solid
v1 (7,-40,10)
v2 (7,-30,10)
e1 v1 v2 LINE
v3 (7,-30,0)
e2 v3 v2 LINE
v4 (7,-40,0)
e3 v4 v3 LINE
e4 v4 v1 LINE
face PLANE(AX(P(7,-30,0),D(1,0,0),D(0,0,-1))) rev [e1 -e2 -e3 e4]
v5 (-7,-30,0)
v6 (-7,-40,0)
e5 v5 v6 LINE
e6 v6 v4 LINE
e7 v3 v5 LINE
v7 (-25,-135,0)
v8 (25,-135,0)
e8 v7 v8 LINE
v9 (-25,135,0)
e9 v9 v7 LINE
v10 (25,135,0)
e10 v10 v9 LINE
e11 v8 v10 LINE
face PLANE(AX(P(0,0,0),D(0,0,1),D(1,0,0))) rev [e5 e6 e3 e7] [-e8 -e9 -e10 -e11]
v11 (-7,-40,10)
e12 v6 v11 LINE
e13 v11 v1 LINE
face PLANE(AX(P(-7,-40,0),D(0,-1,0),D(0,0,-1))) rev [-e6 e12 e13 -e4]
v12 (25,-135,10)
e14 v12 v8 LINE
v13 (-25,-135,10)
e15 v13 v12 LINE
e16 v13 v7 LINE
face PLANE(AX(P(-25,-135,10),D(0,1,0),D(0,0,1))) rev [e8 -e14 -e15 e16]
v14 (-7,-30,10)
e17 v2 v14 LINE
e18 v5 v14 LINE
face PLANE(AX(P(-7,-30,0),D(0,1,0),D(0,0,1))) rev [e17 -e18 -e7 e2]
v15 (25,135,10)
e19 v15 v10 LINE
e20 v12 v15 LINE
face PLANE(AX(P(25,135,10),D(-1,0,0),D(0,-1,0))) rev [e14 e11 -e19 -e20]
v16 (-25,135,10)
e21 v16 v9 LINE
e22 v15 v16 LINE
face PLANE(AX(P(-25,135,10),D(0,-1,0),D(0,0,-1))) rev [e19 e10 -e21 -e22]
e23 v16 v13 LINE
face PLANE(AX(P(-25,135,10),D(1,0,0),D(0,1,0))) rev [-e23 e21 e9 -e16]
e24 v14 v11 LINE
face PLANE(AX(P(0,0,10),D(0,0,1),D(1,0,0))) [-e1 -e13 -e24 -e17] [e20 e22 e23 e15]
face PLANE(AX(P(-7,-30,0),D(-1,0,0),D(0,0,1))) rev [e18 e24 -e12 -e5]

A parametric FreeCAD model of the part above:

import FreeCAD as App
import Part
import Sketcher
from FreeCAD import Vector


def add_polygon(sketch, points):
    """Adds a closed chain of lines whose ends are joined by coincident constraints."""
    first, n = sketch.GeometryCount, len(points)
    for a, b in zip(points, points[1:] + points[:1]):
        sketch.addGeometry(Part.LineSegment(App.Vector(*a, 0), App.Vector(*b, 0)), False)
    for i in range(n):
        sketch.addConstraint(Sketcher.Constraint("Coincident", first + i, 2, first + (i + 1) % n, 1))

doc = App.newDocument("Part")
body = doc.addObject("PartDesign::Body", "Body")

sketch1 = doc.addObject("Sketcher::SketchObject", "Sketch")
body.addObject(sketch1)
sketch1.AttachmentSupport = (doc.XY_Plane, [""])
sketch1.MapMode = "FlatFace"
add_polygon(sketch1, [(-25, 135), (-25, -135), (25, -135), (25, 135)])
sketch1.addConstraint(Sketcher.Constraint("Vertical", 0))
sketch1.addConstraint(Sketcher.Constraint("Horizontal", 1))
sketch1.addConstraint(Sketcher.Constraint("Vertical", 2))
sketch1.addConstraint(Sketcher.Constraint("Horizontal", 3))
sketch1.addConstraint(Sketcher.Constraint("Symmetric", 0, 2, 2, 2, -1, 1))
sketch1.addConstraint(Sketcher.Constraint("DistanceX", 1, 1, 1, 2, 50.0))
sketch1.addConstraint(Sketcher.Constraint("DistanceY", 0, 2, 0, 1, 270.0))
pad1 = doc.addObject("PartDesign::Pad", "Pad")
body.addObject(pad1)
pad1.Profile = sketch1
pad1.Length = 10

sketch2 = doc.addObject("Sketcher::SketchObject", "Sketch001")
body.addObject(sketch2)
sketch2.AttachmentSupport = (doc.XY_Plane, [""])
sketch2.MapMode = "FlatFace"
sketch2.AttachmentOffset = App.Placement(Vector(0, 0, 10), App.Rotation())
add_polygon(sketch2, [(-7, -30), (-7, -40), (7, -40), (7, -30)])
sketch2.addConstraint(Sketcher.Constraint("Vertical", 0))
sketch2.addConstraint(Sketcher.Constraint("Horizontal", 1))
sketch2.addConstraint(Sketcher.Constraint("Vertical", 2))
sketch2.addConstraint(Sketcher.Constraint("Horizontal", 3))
sketch2.addConstraint(Sketcher.Constraint("DistanceX", 1, 1, 1, 2, 14.0))
sketch2.addConstraint(Sketcher.Constraint("DistanceY", 0, 2, 0, 1, 10.0))
sketch2.addConstraint(Sketcher.Constraint("DistanceX", 0, 2, -1, 1, 7.0))
sketch2.addConstraint(Sketcher.Constraint("DistanceY", 0, 2, -1, 1, 40.0))
pocket1 = doc.addObject("PartDesign::Pocket", "Pocket")
body.addObject(pocket1)
pocket1.Profile = sketch2
pocket1.Type = "ThroughAll"

doc.recompute()
